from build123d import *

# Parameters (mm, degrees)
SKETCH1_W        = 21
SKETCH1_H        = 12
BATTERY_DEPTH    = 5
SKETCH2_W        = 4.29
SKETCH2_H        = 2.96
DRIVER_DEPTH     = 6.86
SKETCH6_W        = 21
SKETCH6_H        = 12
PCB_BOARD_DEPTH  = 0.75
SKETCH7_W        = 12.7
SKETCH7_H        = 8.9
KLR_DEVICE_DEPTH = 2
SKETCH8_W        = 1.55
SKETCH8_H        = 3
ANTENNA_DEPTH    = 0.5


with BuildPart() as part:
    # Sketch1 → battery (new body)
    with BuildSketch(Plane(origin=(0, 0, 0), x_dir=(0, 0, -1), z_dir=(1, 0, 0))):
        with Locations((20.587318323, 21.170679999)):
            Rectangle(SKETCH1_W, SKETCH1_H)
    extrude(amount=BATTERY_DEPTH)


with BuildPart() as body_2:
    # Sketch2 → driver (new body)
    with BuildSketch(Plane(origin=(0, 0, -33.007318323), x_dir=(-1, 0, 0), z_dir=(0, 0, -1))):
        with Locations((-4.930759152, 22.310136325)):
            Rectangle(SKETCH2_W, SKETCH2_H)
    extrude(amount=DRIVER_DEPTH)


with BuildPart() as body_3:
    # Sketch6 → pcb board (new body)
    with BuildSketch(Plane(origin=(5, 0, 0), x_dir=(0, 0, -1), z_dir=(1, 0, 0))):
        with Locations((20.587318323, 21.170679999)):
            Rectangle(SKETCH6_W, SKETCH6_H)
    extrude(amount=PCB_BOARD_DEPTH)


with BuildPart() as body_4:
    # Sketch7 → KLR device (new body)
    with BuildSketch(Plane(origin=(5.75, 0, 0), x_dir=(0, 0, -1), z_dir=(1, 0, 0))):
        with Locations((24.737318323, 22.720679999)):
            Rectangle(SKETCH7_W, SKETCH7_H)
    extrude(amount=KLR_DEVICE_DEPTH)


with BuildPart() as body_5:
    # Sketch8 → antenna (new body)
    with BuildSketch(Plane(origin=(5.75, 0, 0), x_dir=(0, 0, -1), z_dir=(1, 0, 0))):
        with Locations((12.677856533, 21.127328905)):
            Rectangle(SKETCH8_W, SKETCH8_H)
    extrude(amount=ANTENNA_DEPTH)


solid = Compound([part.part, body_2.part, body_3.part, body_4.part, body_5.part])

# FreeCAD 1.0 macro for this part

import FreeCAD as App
import Part
import Sketcher
from FreeCAD import Vector

doc = App.newDocument("Part")
body = doc.addObject("PartDesign::Body", "Body")

sketch1 = body.newObject("Sketcher::SketchObject", "Sketch")
sketch1.AttachmentSupport = (doc.getObject("YZ_Plane"), [""])
sketch1.MapMode = "FlatFace"
sketch1.addGeometry([
    Part.LineSegment(Vector(27, -10, 0), Vector(15, -10, 0)),
    Part.LineSegment(Vector(15, -10, 0), Vector(15, -31, 0)),
    Part.LineSegment(Vector(15, -31, 0), Vector(27, -31, 0)),
    Part.LineSegment(Vector(27, -31, 0), Vector(27, -10, 0)),
], False)
sketch1.addConstraint([
    Sketcher.Constraint("Coincident", 0, 2, 1, 1),
    Sketcher.Constraint("Coincident", 1, 2, 2, 1),
    Sketcher.Constraint("Coincident", 2, 2, 3, 1),
    Sketcher.Constraint("Coincident", 3, 2, 0, 1),
    Sketcher.Constraint("Horizontal", 0),
    Sketcher.Constraint("Vertical", 1),
    Sketcher.Constraint("Horizontal", 2),
    Sketcher.Constraint("Vertical", 3),
    Sketcher.Constraint("DistanceX", 0, 2, 0, 1, 12.0),
    Sketcher.Constraint("DistanceY", 1, 2, 1, 1, 21.0),
    Sketcher.Constraint("DistanceX", -1, 1, 0, 2, 15.17068),
    Sketcher.Constraint("DistanceY", 0, 2, -1, 1, 10.087318),
])
pad1 = body.newObject("PartDesign::Pad", "Pad")
pad1.Profile = sketch1
pad1.Length = 5
body2 = doc.addObject("PartDesign::Body", "Body001")

sketch2 = body2.newObject("Sketcher::SketchObject", "Sketch001")
sketch2.AttachmentSupport = (doc.getObject("XY_Plane001"), [""])
sketch2.MapMode = "FlatFace"
sketch2.AttachmentOffset = App.Placement(Vector(0, 0, -33.007318), App.Rotation())
sketch2.addGeometry([
    Part.LineSegment(Vector(7.1, 23.8, 0), Vector(7.1, 20.8, 0)),
    Part.LineSegment(Vector(7.1, 20.8, 0), Vector(2.8, 20.8, 0)),
    Part.LineSegment(Vector(2.8, 20.8, 0), Vector(2.8, 23.8, 0)),
    Part.LineSegment(Vector(2.8, 23.8, 0), Vector(7.1, 23.8, 0)),
], False)
sketch2.addConstraint([
    Sketcher.Constraint("Coincident", 0, 2, 1, 1),
    Sketcher.Constraint("Coincident", 1, 2, 2, 1),
    Sketcher.Constraint("Coincident", 2, 2, 3, 1),
    Sketcher.Constraint("Coincident", 3, 2, 0, 1),
    Sketcher.Constraint("Vertical", 0),
    Sketcher.Constraint("Horizontal", 1),
    Sketcher.Constraint("Vertical", 2),
    Sketcher.Constraint("Horizontal", 3),
    Sketcher.Constraint("DistanceX", 1, 2, 1, 1, 4.29),
    Sketcher.Constraint("DistanceY", 0, 2, 0, 1, 2.96),
    Sketcher.Constraint("DistanceX", -1, 1, 0, 2, 7.075759),
    Sketcher.Constraint("DistanceY", -1, 1, 0, 2, 20.830136),
])
pad2 = body2.newObject("PartDesign::Pad", "Pad001")
pad2.Profile = sketch2
pad2.Length = 6.86
pad2.Reversed = True
body3 = doc.addObject("PartDesign::Body", "Body002")

sketch3 = body3.newObject("Sketcher::SketchObject", "Sketch002")
sketch3.AttachmentSupport = (doc.getObject("YZ_Plane002"), [""])
sketch3.MapMode = "FlatFace"
sketch3.AttachmentOffset = App.Placement(Vector(0, 0, 5), App.Rotation())
sketch3.addGeometry([
    Part.LineSegment(Vector(27, -10, 0), Vector(15, -10, 0)),
    Part.LineSegment(Vector(15, -10, 0), Vector(15, -31, 0)),
    Part.LineSegment(Vector(15, -31, 0), Vector(27, -31, 0)),
    Part.LineSegment(Vector(27, -31, 0), Vector(27, -10, 0)),
], False)
sketch3.addConstraint([
    Sketcher.Constraint("Coincident", 0, 2, 1, 1),
    Sketcher.Constraint("Coincident", 1, 2, 2, 1),
    Sketcher.Constraint("Coincident", 2, 2, 3, 1),
    Sketcher.Constraint("Coincident", 3, 2, 0, 1),
    Sketcher.Constraint("Horizontal", 0),
    Sketcher.Constraint("Vertical", 1),
    Sketcher.Constraint("Horizontal", 2),
    Sketcher.Constraint("Vertical", 3),
    Sketcher.Constraint("DistanceX", 0, 2, 0, 1, 12.0),
    Sketcher.Constraint("DistanceY", 1, 2, 1, 1, 21.0),
    Sketcher.Constraint("DistanceX", -1, 1, 0, 2, 15.17068),
    Sketcher.Constraint("DistanceY", 0, 2, -1, 1, 10.087318),
])
pad3 = body3.newObject("PartDesign::Pad", "Pad002")
pad3.Profile = sketch3
pad3.Length = 0.75
body4 = doc.addObject("PartDesign::Body", "Body003")

sketch4 = body4.newObject("Sketcher::SketchObject", "Sketch003")
sketch4.AttachmentSupport = (doc.getObject("YZ_Plane003"), [""])
sketch4.MapMode = "FlatFace"
sketch4.AttachmentOffset = App.Placement(Vector(0, 0, 5.75), App.Rotation())
sketch4.addGeometry([
    Part.LineSegment(Vector(27, -18, 0), Vector(18, -18, 0)),
    Part.LineSegment(Vector(18, -18, 0), Vector(18, -31, 0)),
    Part.LineSegment(Vector(18, -31, 0), Vector(27, -31, 0)),
    Part.LineSegment(Vector(27, -31, 0), Vector(27, -18, 0)),
], False)
sketch4.addConstraint([
    Sketcher.Constraint("Coincident", 0, 2, 1, 1),
    Sketcher.Constraint("Coincident", 1, 2, 2, 1),
    Sketcher.Constraint("Coincident", 2, 2, 3, 1),
    Sketcher.Constraint("Coincident", 3, 2, 0, 1),
    Sketcher.Constraint("Horizontal", 0),
    Sketcher.Constraint("Vertical", 1),
    Sketcher.Constraint("Horizontal", 2),
    Sketcher.Constraint("Vertical", 3),
    Sketcher.Constraint("DistanceX", 0, 2, 0, 1, 8.9),
    Sketcher.Constraint("DistanceY", 1, 2, 1, 1, 12.7),
    Sketcher.Constraint("DistanceX", -1, 1, 0, 2, 18.27068),
    Sketcher.Constraint("DistanceY", 0, 2, -1, 1, 18.387318),
])
pad4 = body4.newObject("PartDesign::Pad", "Pad003")
pad4.Profile = sketch4
pad4.Length = 2
body5 = doc.addObject("PartDesign::Body", "Body004")

sketch5 = body5.newObject("Sketcher::SketchObject", "Sketch004")
sketch5.AttachmentSupport = (doc.getObject("YZ_Plane004"), [""])
sketch5.MapMode = "FlatFace"
sketch5.AttachmentOffset = App.Placement(Vector(0, 0, 5.75), App.Rotation())
sketch5.addGeometry([
    Part.LineSegment(Vector(22.6, -11.9, 0), Vector(19.6, -11.9, 0)),
    Part.LineSegment(Vector(19.6, -11.9, 0), Vector(19.6, -13.5, 0)),
    Part.LineSegment(Vector(19.6, -13.5, 0), Vector(22.6, -13.5, 0)),
    Part.LineSegment(Vector(22.6, -13.5, 0), Vector(22.6, -11.9, 0)),
], False)
sketch5.addConstraint([
    Sketcher.Constraint("Coincident", 0, 2, 1, 1),
    Sketcher.Constraint("Coincident", 1, 2, 2, 1),
    Sketcher.Constraint("Coincident", 2, 2, 3, 1),
    Sketcher.Constraint("Coincident", 3, 2, 0, 1),
    Sketcher.Constraint("Horizontal", 0),
    Sketcher.Constraint("Vertical", 1),
    Sketcher.Constraint("Horizontal", 2),
    Sketcher.Constraint("Vertical", 3),
    Sketcher.Constraint("DistanceX", 0, 2, 0, 1, 3.0),
    Sketcher.Constraint("DistanceY", 1, 2, 1, 1, 1.55),
    Sketcher.Constraint("DistanceX", -1, 1, 0, 2, 19.627329),
    Sketcher.Constraint("DistanceY", 0, 2, -1, 1, 11.902857),
])
pad5 = body5.newObject("PartDesign::Pad", "Pad004")
pad5.Profile = sketch5
pad5.Length = 0.5

doc.recompute()
